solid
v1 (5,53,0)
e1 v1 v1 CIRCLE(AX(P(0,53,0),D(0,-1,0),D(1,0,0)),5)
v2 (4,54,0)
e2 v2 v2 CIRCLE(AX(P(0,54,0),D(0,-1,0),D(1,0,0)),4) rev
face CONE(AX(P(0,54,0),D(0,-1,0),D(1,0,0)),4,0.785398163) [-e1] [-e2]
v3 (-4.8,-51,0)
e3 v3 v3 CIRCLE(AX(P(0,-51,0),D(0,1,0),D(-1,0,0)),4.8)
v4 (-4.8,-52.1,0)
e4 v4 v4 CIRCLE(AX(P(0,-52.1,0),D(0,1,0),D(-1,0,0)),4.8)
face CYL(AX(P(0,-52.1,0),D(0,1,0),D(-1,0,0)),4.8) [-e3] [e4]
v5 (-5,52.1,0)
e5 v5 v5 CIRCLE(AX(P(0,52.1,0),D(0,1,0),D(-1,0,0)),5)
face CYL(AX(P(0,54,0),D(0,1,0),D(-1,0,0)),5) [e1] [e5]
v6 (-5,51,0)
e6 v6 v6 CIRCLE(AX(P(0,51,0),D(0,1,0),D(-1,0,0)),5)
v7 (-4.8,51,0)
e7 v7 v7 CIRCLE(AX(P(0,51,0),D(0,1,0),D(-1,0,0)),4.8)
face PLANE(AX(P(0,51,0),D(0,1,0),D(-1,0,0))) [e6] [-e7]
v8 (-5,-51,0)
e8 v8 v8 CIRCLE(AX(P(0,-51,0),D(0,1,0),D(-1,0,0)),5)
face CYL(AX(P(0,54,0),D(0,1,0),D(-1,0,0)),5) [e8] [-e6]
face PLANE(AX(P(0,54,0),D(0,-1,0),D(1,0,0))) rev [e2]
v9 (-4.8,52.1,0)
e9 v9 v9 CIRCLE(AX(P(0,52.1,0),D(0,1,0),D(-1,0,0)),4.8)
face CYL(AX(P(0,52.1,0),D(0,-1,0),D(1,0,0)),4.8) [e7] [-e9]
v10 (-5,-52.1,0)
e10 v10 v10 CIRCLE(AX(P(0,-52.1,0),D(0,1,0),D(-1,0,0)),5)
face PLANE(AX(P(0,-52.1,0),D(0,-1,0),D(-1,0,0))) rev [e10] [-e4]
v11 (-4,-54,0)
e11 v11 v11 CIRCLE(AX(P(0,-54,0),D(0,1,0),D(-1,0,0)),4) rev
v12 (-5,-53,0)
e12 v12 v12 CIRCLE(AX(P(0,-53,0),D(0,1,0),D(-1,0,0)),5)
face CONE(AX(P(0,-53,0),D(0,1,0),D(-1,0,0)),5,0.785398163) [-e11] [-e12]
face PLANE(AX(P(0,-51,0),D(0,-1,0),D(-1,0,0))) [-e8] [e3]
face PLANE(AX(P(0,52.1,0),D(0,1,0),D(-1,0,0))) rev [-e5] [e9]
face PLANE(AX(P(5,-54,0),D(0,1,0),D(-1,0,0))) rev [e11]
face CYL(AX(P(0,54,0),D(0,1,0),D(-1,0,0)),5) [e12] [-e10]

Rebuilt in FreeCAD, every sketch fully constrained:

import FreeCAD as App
import Part
import Sketcher
Q = App.Units.Quantity


def edges_at(feature, points):
    """Names of the edges that pass closest to the given points."""
    edges = feature.Shape.Edges
    near = lambda p: min(range(len(edges)), key=lambda i: edges[i].distToShape(Part.Vertex(*p))[0])
    return sorted({f"Edge{near(p) + 1}" for p in points})

doc = App.newDocument("Part")
body = doc.addObject("PartDesign::Body", "Body")

sketch1 = body.newObject("Sketcher::SketchObject", "Sketch")
sketch1.AttachmentSupport = (doc.getObject("XY_Plane"), [""])
sketch1.MapMode = "FlatFace"
sketch1.addGeometry([
    Part.LineSegment(App.Vector(5, 54, 0), App.Vector(0, 54, 0)),
    Part.LineSegment(App.Vector(0, 54, 0), App.Vector(0, -54, 0)),
    Part.LineSegment(App.Vector(0, -54, 0), App.Vector(5, -54, 0)),
    Part.LineSegment(App.Vector(5, -54, 0), App.Vector(5, 54, 0)),
], False)
sketch1.addConstraint([
    Sketcher.Constraint("Coincident", 0, 2, 1, 1),
    Sketcher.Constraint("Coincident", 1, 2, 2, 1),
    Sketcher.Constraint("Coincident", 2, 2, 3, 1),
    Sketcher.Constraint("Coincident", 3, 2, 0, 1),
    Sketcher.Constraint("Horizontal", 0),
    Sketcher.Constraint("Vertical", 1),
    Sketcher.Constraint("Horizontal", 2),
    Sketcher.Constraint("Vertical", 3),
    Sketcher.Constraint("Symmetric", 0, 2, 1, 2, -1, 1),
    Sketcher.Constraint("DistanceX", 0, 2, 0, 1, Q("5 mm")),
    Sketcher.Constraint("DistanceY", 1, 2, 1, 1, Q("108 mm")),
])
revolution = body.newObject("PartDesign::Revolution", "Revolution")
revolution.Profile = sketch1
revolution.ReferenceAxis = (sketch1, ["V_Axis"])
revolution.Angle = 360
doc.recompute()

chamfer = body.newObject("PartDesign::Chamfer", "Chamfer")
chamfer.Base = (revolution, edges_at(revolution, [(5, -54, 0), (5, 54, 0)]))
chamfer.Size = 1

sketch2 = body.newObject("Sketcher::SketchObject", "Sketch001")
sketch2.AttachmentSupport = (doc.getObject("XZ_Plane"), [""])
sketch2.MapMode = "FlatFace"
sketch2.AttachmentOffset = App.Placement(App.Vector(0, 0, -51), App.Rotation())
sketch2.addGeometry([
    Part.Circle(App.Vector(0, 0, 0), App.Vector(0, 0, 1), 5),
    Part.Circle(App.Vector(0, 0, 0), App.Vector(0, 0, 1), 4.8),
], False)
sketch2.addConstraint([
    Sketcher.Constraint("Coincident", 0, 3, -1, 1),
    Sketcher.Constraint("Coincident", 1, 3, -1, 1),
    Sketcher.Constraint("Diameter", 0, Q("10 mm")),
    Sketcher.Constraint("Diameter", 1, Q("9.6 mm")),
])
pocket1 = body.newObject("PartDesign::Pocket", "Pocket")
pocket1.Profile = sketch2
pocket1.Length = 1.1
doc.recompute()

mirrored = body.newObject("PartDesign::Mirrored", "Mirrored")
mirrored.Originals = [pocket1]
mirrored.MirrorPlane = (doc.getObject("XZ_Plane"), [""])
body.Tip = mirrored

doc.recompute()
